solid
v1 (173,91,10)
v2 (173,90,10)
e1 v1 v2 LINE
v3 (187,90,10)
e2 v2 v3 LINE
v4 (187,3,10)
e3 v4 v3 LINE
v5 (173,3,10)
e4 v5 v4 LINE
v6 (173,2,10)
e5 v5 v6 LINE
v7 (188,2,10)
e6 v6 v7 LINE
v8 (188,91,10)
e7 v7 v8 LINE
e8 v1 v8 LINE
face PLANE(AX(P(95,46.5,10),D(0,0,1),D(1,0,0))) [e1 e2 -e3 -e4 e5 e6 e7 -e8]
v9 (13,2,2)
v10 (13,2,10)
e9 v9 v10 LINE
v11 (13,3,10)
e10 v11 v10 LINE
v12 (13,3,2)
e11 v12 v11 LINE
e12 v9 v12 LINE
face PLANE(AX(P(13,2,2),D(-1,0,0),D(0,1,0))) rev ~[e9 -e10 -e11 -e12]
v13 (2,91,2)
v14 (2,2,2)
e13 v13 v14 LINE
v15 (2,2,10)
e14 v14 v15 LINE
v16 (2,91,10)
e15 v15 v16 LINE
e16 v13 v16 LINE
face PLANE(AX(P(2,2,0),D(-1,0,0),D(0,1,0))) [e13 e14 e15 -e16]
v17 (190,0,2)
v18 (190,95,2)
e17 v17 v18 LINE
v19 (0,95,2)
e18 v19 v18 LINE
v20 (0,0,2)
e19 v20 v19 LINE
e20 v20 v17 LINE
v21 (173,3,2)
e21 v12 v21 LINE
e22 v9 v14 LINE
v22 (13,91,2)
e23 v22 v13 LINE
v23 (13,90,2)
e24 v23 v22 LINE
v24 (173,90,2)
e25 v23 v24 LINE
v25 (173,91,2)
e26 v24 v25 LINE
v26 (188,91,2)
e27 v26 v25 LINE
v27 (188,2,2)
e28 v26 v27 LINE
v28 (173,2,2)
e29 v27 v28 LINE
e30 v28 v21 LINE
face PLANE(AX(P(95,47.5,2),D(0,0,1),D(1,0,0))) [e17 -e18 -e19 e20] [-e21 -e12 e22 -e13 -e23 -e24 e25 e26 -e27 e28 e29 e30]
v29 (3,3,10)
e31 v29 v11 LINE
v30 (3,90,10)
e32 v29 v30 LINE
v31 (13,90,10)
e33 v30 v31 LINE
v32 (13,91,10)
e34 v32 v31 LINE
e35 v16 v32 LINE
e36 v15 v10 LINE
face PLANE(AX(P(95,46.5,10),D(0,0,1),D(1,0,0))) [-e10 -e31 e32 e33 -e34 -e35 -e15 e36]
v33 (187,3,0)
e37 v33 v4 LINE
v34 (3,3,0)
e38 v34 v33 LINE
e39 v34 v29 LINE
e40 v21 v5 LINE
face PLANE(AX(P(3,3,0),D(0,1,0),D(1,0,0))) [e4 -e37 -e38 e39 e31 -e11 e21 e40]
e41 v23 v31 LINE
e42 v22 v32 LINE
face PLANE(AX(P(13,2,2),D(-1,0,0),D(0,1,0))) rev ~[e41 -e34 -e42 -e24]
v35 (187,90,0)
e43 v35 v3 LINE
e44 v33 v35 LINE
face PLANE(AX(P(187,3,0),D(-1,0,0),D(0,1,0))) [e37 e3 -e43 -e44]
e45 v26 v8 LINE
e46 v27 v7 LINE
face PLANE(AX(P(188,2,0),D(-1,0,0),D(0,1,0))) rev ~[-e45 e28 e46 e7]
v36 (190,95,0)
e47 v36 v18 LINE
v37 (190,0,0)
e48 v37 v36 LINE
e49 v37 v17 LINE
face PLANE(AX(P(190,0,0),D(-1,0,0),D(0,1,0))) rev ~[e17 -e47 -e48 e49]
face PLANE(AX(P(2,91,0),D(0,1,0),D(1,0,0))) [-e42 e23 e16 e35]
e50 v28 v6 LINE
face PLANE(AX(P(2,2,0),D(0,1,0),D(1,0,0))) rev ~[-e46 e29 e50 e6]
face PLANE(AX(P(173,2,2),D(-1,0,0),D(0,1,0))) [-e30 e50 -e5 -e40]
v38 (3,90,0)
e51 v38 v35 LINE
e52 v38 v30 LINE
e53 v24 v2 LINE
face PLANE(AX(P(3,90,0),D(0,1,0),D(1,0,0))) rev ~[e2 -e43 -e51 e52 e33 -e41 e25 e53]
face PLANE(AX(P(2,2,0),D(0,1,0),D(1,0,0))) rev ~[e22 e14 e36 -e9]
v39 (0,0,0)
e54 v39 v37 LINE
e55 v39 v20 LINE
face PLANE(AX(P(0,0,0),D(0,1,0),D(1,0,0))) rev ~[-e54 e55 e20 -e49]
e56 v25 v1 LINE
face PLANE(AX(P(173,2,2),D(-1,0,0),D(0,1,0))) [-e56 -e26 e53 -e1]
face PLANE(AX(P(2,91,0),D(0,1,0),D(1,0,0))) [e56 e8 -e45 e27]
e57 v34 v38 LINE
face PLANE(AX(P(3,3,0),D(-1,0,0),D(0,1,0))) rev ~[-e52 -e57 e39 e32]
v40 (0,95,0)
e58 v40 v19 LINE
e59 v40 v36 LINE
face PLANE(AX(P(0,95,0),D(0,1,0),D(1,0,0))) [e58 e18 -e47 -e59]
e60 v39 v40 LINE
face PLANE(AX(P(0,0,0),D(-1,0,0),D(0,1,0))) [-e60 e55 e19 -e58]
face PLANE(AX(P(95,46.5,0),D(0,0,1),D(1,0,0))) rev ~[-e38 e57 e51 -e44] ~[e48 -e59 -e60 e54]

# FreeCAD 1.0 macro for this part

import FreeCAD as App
import Part
import Sketcher

V = App.Vector

doc = App.newDocument("Part")
params = doc.addObject("Spreadsheet::Sheet", "Params")
for row, (alias, value) in enumerate([
    ("sketch1_width", "190 mm"),
    ("sketch1_height", "95 mm"),
    ("pad1_length", "2 mm"),
    ("sketch2_width", "186 mm"),
    ("sketch2_height", "89 mm"),
    ("pad2_length", "10 mm"),
    ("sketch3_width", "184 mm"),
    ("sketch3_height", "87 mm"),
    ("pocket1_length", "10 mm"),
    ("sketch4_width", "160 mm"),
    ("sketch4_height", "89 mm"),
    ("pocket2_length", "10 mm"),
], start=1):
    params.set(f"A{row}", alias)
    params.set(f"B{row}", "=" + value)
    params.setAlias(f"B{row}", alias)

body = doc.addObject("PartDesign::Body", "Body")

sketch1 = body.newObject("Sketcher::SketchObject", "Sketch")
sketch1.AttachmentSupport = (doc.getObject("XY_Plane"), [""])
sketch1.MapMode = "FlatFace"
sketch1.addGeometry(Part.LineSegment(V(0, 95, 0), V(0, 0, 0)), False)
sketch1.addGeometry(Part.LineSegment(V(0, 0, 0), V(190, 0, 0)), False)
sketch1.addGeometry(Part.LineSegment(V(190, 0, 0), V(190, 95, 0)), False)
sketch1.addGeometry(Part.LineSegment(V(190, 95, 0), V(0, 95, 0)), False)
sketch1.addConstraint(Sketcher.Constraint("Coincident", 0, 2, 1, 1))
sketch1.addConstraint(Sketcher.Constraint("Coincident", 1, 2, 2, 1))
sketch1.addConstraint(Sketcher.Constraint("Coincident", 2, 2, 3, 1))
sketch1.addConstraint(Sketcher.Constraint("Coincident", 3, 2, 0, 1))
sketch1.addConstraint(Sketcher.Constraint("Vertical", 0))
sketch1.addConstraint(Sketcher.Constraint("Horizontal", 1))
sketch1.addConstraint(Sketcher.Constraint("Vertical", 2))
sketch1.addConstraint(Sketcher.Constraint("Horizontal", 3))
sketch1.addConstraint(Sketcher.Constraint("Coincident", 0, 2, -1, 1))
sketch1.addConstraint(Sketcher.Constraint("DistanceX", 1, 1, 1, 2, 190.0))
sketch1.addConstraint(Sketcher.Constraint("DistanceY", 0, 2, 0, 1, 95.0))
sketch1.setExpression("Constraints[9]", "Params.sketch1_width")
sketch1.setExpression("Constraints[10]", "Params.sketch1_height")
pad1 = body.newObject("PartDesign::Pad", "Pad")
pad1.Profile = sketch1
pad1.setExpression("Length", "Params.pad1_length")

sketch2 = body.newObject("Sketcher::SketchObject", "Sketch001")
sketch2.AttachmentSupport = (doc.getObject("XY_Plane"), [""])
sketch2.MapMode = "FlatFace"
sketch2.addGeometry(Part.LineSegment(V(2, 91, 0), V(2, 2, 0)), False)
sketch2.addGeometry(Part.LineSegment(V(2, 2, 0), V(188, 2, 0)), False)
sketch2.addGeometry(Part.LineSegment(V(188, 2, 0), V(188, 91, 0)), False)
sketch2.addGeometry(Part.LineSegment(V(188, 91, 0), V(2, 91, 0)), False)
sketch2.addConstraint(Sketcher.Constraint("Coincident", 0, 2, 1, 1))
sketch2.addConstraint(Sketcher.Constraint("Coincident", 1, 2, 2, 1))
sketch2.addConstraint(Sketcher.Constraint("Coincident", 2, 2, 3, 1))
sketch2.addConstraint(Sketcher.Constraint("Coincident", 3, 2, 0, 1))
sketch2.addConstraint(Sketcher.Constraint("Vertical", 0))
sketch2.addConstraint(Sketcher.Constraint("Horizontal", 1))
sketch2.addConstraint(Sketcher.Constraint("Vertical", 2))
sketch2.addConstraint(Sketcher.Constraint("Horizontal", 3))
sketch2.addConstraint(Sketcher.Constraint("DistanceX", 1, 1, 1, 2, 186.0))
sketch2.addConstraint(Sketcher.Constraint("DistanceY", 0, 2, 0, 1, 89.0))
sketch2.addConstraint(Sketcher.Constraint("DistanceX", -1, 1, 0, 2, 2.0))
sketch2.addConstraint(Sketcher.Constraint("DistanceY", -1, 1, 0, 2, 2.0))
sketch2.setExpression("Constraints[8]", "Params.sketch2_width")
sketch2.setExpression("Constraints[9]", "Params.sketch2_height")
pad2 = body.newObject("PartDesign::Pad", "Pad001")
pad2.Profile = sketch2
pad2.setExpression("Length", "Params.pad2_length")

sketch3 = body.newObject("Sketcher::SketchObject", "Sketch002")
sketch3.AttachmentSupport = (doc.getObject("XY_Plane"), [""])
sketch3.MapMode = "FlatFace"
sketch3.addGeometry(Part.LineSegment(V(3, 90, 0), V(3, 3, 0)), False)
sketch3.addGeometry(Part.LineSegment(V(3, 3, 0), V(187, 3, 0)), False)
sketch3.addGeometry(Part.LineSegment(V(187, 3, 0), V(187, 90, 0)), False)
sketch3.addGeometry(Part.LineSegment(V(187, 90, 0), V(3, 90, 0)), False)
sketch3.addConstraint(Sketcher.Constraint("Coincident", 0, 2, 1, 1))
sketch3.addConstraint(Sketcher.Constraint("Coincident", 1, 2, 2, 1))
sketch3.addConstraint(Sketcher.Constraint("Coincident", 2, 2, 3, 1))
sketch3.addConstraint(Sketcher.Constraint("Coincident", 3, 2, 0, 1))
sketch3.addConstraint(Sketcher.Constraint("Vertical", 0))
sketch3.addConstraint(Sketcher.Constraint("Horizontal", 1))
sketch3.addConstraint(Sketcher.Constraint("Vertical", 2))
sketch3.addConstraint(Sketcher.Constraint("Horizontal", 3))
sketch3.addConstraint(Sketcher.Constraint("DistanceX", 1, 1, 1, 2, 184.0))
sketch3.addConstraint(Sketcher.Constraint("DistanceY", 0, 2, 0, 1, 87.0))
sketch3.addConstraint(Sketcher.Constraint("DistanceX", -1, 1, 0, 2, 3.0))
sketch3.addConstraint(Sketcher.Constraint("DistanceY", -1, 1, 0, 2, 3.0))
sketch3.setExpression("Constraints[8]", "Params.sketch3_width")
sketch3.setExpression("Constraints[9]", "Params.sketch3_height")
pocket1 = body.newObject("PartDesign::Pocket", "Pocket")
pocket1.Profile = sketch3
pocket1.setExpression("Length", "Params.pocket1_length")
pocket1.Reversed = True

sketch4 = body.newObject("Sketcher::SketchObject", "Sketch003")
sketch4.AttachmentSupport = (doc.getObject("XY_Plane"), [""])
sketch4.MapMode = "FlatFace"
sketch4.AttachmentOffset = App.Placement(V(0, 0, 2), App.Rotation())
sketch4.addGeometry(Part.LineSegment(V(13, 91, 0), V(13, 2, 0)), False)
sketch4.addGeometry(Part.LineSegment(V(13, 2, 0), V(173, 2, 0)), False)
sketch4.addGeometry(Part.LineSegment(V(173, 2, 0), V(173, 91, 0)), False)
sketch4.addGeometry(Part.LineSegment(V(173, 91, 0), V(13, 91, 0)), False)
sketch4.addConstraint(Sketcher.Constraint("Coincident", 0, 2, 1, 1))
sketch4.addConstraint(Sketcher.Constraint("Coincident", 1, 2, 2, 1))
sketch4.addConstraint(Sketcher.Constraint("Coincident", 2, 2, 3, 1))
sketch4.addConstraint(Sketcher.Constraint("Coincident", 3, 2, 0, 1))
sketch4.addConstraint(Sketcher.Constraint("Vertical", 0))
sketch4.addConstraint(Sketcher.Constraint("Horizontal", 1))
sketch4.addConstraint(Sketcher.Constraint("Vertical", 2))
sketch4.addConstraint(Sketcher.Constraint("Horizontal", 3))
sketch4.addConstraint(Sketcher.Constraint("DistanceX", 1, 1, 1, 2, 160.0))
sketch4.addConstraint(Sketcher.Constraint("DistanceY", 0, 2, 0, 1, 89.0))
sketch4.addConstraint(Sketcher.Constraint("DistanceX", -1, 1, 0, 2, 13.0))
sketch4.addConstraint(Sketcher.Constraint("DistanceY", -1, 1, 0, 2, 2.0))
sketch4.setExpression("Constraints[8]", "Params.sketch4_width")
sketch4.setExpression("Constraints[9]", "Params.sketch4_height")
pocket2 = body.newObject("PartDesign::Pocket", "Pocket001")
pocket2.Profile = sketch4
pocket2.setExpression("Length", "Params.pocket2_length")
pocket2.Reversed = True

doc.recompute()
